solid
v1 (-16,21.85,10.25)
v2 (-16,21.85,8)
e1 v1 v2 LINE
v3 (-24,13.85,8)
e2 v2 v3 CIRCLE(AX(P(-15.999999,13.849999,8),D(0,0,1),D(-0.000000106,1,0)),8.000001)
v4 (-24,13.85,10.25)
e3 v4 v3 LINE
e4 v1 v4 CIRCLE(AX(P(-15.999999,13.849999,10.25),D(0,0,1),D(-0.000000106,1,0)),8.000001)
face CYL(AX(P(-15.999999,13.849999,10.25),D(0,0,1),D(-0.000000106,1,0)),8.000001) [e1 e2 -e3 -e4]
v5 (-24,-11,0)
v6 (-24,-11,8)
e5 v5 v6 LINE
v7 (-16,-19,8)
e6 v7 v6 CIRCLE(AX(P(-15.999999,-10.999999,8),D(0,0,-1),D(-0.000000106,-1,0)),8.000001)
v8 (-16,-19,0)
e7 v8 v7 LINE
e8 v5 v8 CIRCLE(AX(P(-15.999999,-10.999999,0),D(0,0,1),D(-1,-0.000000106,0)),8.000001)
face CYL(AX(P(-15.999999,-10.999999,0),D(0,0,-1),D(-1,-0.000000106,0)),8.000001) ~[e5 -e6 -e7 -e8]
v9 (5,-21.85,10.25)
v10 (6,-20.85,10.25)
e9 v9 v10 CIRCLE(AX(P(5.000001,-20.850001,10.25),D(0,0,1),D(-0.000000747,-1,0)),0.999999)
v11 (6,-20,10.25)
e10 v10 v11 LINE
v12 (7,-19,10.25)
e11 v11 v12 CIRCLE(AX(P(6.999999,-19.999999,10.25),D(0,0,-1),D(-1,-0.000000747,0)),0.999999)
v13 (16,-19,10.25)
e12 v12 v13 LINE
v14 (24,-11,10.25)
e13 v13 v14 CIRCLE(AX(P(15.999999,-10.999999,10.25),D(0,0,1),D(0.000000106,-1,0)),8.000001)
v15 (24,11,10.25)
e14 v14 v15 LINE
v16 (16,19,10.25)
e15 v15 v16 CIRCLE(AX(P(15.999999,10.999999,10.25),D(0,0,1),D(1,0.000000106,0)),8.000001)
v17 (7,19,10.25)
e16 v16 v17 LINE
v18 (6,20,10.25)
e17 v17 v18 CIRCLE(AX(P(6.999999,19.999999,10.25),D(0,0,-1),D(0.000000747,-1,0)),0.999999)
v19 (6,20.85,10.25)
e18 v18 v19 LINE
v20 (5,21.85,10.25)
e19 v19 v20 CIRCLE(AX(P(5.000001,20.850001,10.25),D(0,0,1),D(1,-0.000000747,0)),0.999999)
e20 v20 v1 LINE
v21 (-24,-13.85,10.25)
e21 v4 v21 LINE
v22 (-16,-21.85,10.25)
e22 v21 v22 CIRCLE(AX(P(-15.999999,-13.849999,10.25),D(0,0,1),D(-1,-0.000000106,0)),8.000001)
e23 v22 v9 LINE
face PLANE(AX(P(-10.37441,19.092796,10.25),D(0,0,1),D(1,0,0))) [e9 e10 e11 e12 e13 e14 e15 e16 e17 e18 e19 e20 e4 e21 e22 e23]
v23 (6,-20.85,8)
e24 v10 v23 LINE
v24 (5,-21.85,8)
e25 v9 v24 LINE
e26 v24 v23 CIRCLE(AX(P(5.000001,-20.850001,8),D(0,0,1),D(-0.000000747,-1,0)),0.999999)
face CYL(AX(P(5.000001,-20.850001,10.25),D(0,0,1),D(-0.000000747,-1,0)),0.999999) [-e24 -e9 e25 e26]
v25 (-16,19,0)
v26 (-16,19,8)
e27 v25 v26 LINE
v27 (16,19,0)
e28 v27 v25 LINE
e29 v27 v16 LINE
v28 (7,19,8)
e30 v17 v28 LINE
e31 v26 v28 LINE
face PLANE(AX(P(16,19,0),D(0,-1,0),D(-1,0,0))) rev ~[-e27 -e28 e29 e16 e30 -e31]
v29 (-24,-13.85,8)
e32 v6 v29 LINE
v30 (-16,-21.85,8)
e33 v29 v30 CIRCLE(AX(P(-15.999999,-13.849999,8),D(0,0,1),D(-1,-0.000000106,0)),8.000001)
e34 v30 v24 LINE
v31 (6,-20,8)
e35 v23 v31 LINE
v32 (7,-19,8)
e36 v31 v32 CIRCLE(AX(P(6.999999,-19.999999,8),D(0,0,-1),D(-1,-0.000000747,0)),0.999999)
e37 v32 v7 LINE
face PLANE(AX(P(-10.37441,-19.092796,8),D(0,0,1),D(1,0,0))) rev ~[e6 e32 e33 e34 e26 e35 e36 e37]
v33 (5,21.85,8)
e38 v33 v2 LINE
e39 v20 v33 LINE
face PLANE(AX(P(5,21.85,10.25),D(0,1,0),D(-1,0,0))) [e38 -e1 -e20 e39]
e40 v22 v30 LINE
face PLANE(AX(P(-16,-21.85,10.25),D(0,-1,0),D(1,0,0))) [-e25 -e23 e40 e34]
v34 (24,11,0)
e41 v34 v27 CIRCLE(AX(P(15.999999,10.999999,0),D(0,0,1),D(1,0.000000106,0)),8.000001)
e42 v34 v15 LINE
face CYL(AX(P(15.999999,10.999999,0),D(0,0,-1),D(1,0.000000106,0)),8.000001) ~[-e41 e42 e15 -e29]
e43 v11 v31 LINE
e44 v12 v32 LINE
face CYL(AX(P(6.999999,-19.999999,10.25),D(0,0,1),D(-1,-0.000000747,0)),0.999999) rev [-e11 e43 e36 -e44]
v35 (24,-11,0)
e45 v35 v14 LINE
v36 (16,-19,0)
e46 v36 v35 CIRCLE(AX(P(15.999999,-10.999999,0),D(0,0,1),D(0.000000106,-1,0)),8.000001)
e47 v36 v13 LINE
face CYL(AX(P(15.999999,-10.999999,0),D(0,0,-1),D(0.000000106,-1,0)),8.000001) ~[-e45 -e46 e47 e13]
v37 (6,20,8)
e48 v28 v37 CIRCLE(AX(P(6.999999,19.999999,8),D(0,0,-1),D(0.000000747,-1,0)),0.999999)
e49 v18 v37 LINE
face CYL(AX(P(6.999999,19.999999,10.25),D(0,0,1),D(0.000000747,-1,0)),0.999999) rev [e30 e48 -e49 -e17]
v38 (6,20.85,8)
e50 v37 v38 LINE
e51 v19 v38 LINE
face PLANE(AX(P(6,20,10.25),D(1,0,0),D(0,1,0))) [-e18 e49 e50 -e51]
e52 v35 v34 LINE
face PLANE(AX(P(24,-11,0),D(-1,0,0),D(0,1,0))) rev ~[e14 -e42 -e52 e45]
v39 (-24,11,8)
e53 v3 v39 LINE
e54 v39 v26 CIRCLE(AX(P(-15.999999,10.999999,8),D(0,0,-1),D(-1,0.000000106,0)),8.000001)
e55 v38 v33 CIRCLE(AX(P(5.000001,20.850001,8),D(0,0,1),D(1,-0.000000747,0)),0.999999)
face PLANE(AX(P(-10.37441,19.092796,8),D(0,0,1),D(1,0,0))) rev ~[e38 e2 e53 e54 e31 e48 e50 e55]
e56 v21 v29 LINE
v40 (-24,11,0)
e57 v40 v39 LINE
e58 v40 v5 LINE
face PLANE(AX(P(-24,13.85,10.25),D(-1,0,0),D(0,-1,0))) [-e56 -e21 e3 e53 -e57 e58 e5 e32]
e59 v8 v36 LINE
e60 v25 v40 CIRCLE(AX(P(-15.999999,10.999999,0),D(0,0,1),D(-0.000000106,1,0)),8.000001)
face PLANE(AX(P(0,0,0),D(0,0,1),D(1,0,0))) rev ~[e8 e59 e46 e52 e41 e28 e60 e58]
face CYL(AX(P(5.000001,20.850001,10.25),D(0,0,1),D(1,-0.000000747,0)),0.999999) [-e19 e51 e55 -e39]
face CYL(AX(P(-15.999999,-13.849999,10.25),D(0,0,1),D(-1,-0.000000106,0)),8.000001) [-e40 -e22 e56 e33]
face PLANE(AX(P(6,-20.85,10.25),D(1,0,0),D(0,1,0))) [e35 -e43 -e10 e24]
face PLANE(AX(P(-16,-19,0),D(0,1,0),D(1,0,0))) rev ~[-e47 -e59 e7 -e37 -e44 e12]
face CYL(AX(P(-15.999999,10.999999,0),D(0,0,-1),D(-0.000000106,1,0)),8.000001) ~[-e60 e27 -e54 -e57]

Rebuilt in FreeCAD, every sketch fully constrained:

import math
import FreeCAD as App
import Part
import Sketcher

doc = App.newDocument("Part")
body = doc.addObject("PartDesign::Body", "Body")

sketch1 = body.newObject("Sketcher::SketchObject", "Sketch")
sketch1.AttachmentSupport = (doc.getObject("XY_Plane"), [""])
sketch1.MapMode = "FlatFace"
sketch1.addGeometry([
    Part.LineSegment(App.Vector(16, 19, 0), App.Vector(-16, 19, 0)),
    Part.ArcOfCircle(Part.Circle(App.Vector(-16, 11, 0), App.Vector(0, 0, 1), 8), math.radians(90), math.radians(180)),
    Part.LineSegment(App.Vector(-24, 11, 0), App.Vector(-24, -11, 0)),
    Part.ArcOfCircle(Part.Circle(App.Vector(-16, -11, 0), App.Vector(0, 0, 1), 8), math.radians(-180), math.radians(-90)),
    Part.LineSegment(App.Vector(-16, -19, 0), App.Vector(16, -19, 0)),
    Part.ArcOfCircle(Part.Circle(App.Vector(16, -11, 0), App.Vector(0, 0, 1), 8), math.radians(-90), math.radians(0)),
    Part.LineSegment(App.Vector(24, -11, 0), App.Vector(24, 11, 0)),
    Part.ArcOfCircle(Part.Circle(App.Vector(16, 11, 0), App.Vector(0, 0, 1), 8), math.radians(0), math.radians(90)),
], False)
sketch1.addConstraint([
    Sketcher.Constraint("Tangent", 0, 2, 1, 1),
    Sketcher.Constraint("Tangent", 1, 2, 2, 1),
    Sketcher.Constraint("Tangent", 2, 2, 3, 1),
    Sketcher.Constraint("Tangent", 3, 2, 4, 1),
    Sketcher.Constraint("Tangent", 4, 2, 5, 1),
    Sketcher.Constraint("Tangent", 5, 2, 6, 1),
    Sketcher.Constraint("Tangent", 6, 2, 7, 1),
    Sketcher.Constraint("Tangent", 7, 2, 0, 1),
    Sketcher.Constraint("Horizontal", 0),
    Sketcher.Constraint("Vertical", 2),
    Sketcher.Constraint("Horizontal", 4),
    Sketcher.Constraint("Vertical", 6),
    Sketcher.Constraint("Equal", 1, 3),
    Sketcher.Constraint("Equal", 3, 5),
    Sketcher.Constraint("Equal", 5, 7),
    Sketcher.Constraint("Symmetric", 1, 3, 5, 3, -1, 1),
    Sketcher.Constraint("Radius", 1, 8.000001),
    Sketcher.Constraint("DistanceX", 0, 2, 0, 1, 32.0),
    Sketcher.Constraint("DistanceY", 2, 2, 2, 1, 22.0),
])
pad1 = body.newObject("PartDesign::Pad", "Pad")
pad1.Profile = sketch1
pad1.Length = 10.25

sketch2 = body.newObject("Sketcher::SketchObject", "Sketch001")
sketch2.AttachmentSupport = (doc.getObject("XY_Plane"), [""])
sketch2.MapMode = "FlatFace"
sketch2.AttachmentOffset = App.Placement(App.Vector(0, 0, 10.25), App.Rotation())
sketch2.addGeometry([
    Part.LineSegment(App.Vector(5, 21.9, 0), App.Vector(-16, 21.9, 0)),
    Part.ArcOfCircle(Part.Circle(App.Vector(-16, 13.8, 0), App.Vector(0, 0, 1), 8), math.radians(90), math.radians(180)),
    Part.LineSegment(App.Vector(-24, 13.8, 0), App.Vector(-24, 11, 0)),
    Part.ArcOfCircle(Part.Circle(App.Vector(-16, 11, 0), App.Vector(0, 0, 1), 8), math.radians(90), math.radians(180)),
    Part.LineSegment(App.Vector(-16, 19, 0), App.Vector(7, 19, 0)),
    Part.ArcOfCircle(Part.Circle(App.Vector(7, 20, 0), App.Vector(0, 0, 1), 1), math.radians(180), math.radians(270)),
    Part.LineSegment(App.Vector(6, 20, 0), App.Vector(6, 20.9, 0)),
    Part.ArcOfCircle(Part.Circle(App.Vector(5, 20.9, 0), App.Vector(0, 0, 1), 1), math.radians(0), math.radians(90)),
    Part.ArcOfCircle(Part.Circle(App.Vector(-16, -11, 0), App.Vector(0, 0, 1), 8), math.radians(-180), math.radians(-90)),
    Part.LineSegment(App.Vector(-24, -11, 0), App.Vector(-24, -13.8, 0)),
    Part.ArcOfCircle(Part.Circle(App.Vector(-16, -13.8, 0), App.Vector(0, 0, 1), 8), math.radians(-180), math.radians(-90)),
    Part.LineSegment(App.Vector(-16, -21.9, 0), App.Vector(5, -21.9, 0)),
    Part.ArcOfCircle(Part.Circle(App.Vector(5, -20.9, 0), App.Vector(0, 0, 1), 1), math.radians(-90), math.radians(0)),
    Part.LineSegment(App.Vector(6, -20.9, 0), App.Vector(6, -20, 0)),
    Part.ArcOfCircle(Part.Circle(App.Vector(7, -20, 0), App.Vector(0, 0, 1), 1), math.radians(90), math.radians(180)),
    Part.LineSegment(App.Vector(7, -19, 0), App.Vector(-16, -19, 0)),
], False)
sketch2.addConstraint([
    Sketcher.Constraint("Tangent", 0, 2, 1, 1),
    Sketcher.Constraint("Tangent", 1, 2, 2, 1),
    Sketcher.Constraint("Tangent", 2, 2, 3, 2),
    Sketcher.Constraint("Tangent", 3, 1, 4, 1),
    Sketcher.Constraint("Tangent", 4, 2, 5, 2),
    Sketcher.Constraint("Tangent", 5, 1, 6, 1),
    Sketcher.Constraint("Tangent", 6, 2, 7, 1),
    Sketcher.Constraint("Tangent", 7, 2, 0, 1),
    Sketcher.Constraint("Tangent", 8, 1, 9, 1),
    Sketcher.Constraint("Tangent", 9, 2, 10, 1),
    Sketcher.Constraint("Tangent", 10, 2, 11, 1),
    Sketcher.Constraint("Tangent", 11, 2, 12, 1),
    Sketcher.Constraint("Tangent", 12, 2, 13, 1),
    Sketcher.Constraint("Tangent", 13, 2, 14, 2),
    Sketcher.Constraint("Tangent", 14, 1, 15, 1),
    Sketcher.Constraint("Tangent", 15, 2, 8, 2),
    Sketcher.Constraint("Horizontal", 0),
    Sketcher.Constraint("Vertical", 2),
    Sketcher.Constraint("Horizontal", 4),
    Sketcher.Constraint("Vertical", 6),
    Sketcher.Constraint("Vertical", 9),
    Sketcher.Constraint("Horizontal", 11),
    Sketcher.Constraint("Vertical", 13),
    Sketcher.Constraint("Horizontal", 15),
    Sketcher.Constraint("Equal", 1, 3),
    Sketcher.Constraint("Equal", 5, 7),
    Sketcher.Constraint("Equal", 3, 8),
    Sketcher.Constraint("Equal", 8, 10),
    Sketcher.Constraint("Equal", 7, 12),
    Sketcher.Constraint("Equal", 12, 14),
    Sketcher.Constraint("Symmetric", 3, 3, 8, 3, -1),
    Sketcher.Constraint("Symmetric", 7, 3, 12, 3, -1),
    Sketcher.Constraint("Radius", 1, 8.000001),
    Sketcher.Constraint("Radius", 5, 0.999999),
    Sketcher.Constraint("DistanceX", 0, 2, 0, 1, 21.0),
    Sketcher.Constraint("DistanceX", 1, 3, -1, 1, 15.999999),
    Sketcher.Constraint("DistanceY", -1, 1, 3, 3, 10.999999),
    Sketcher.Constraint("DistanceY", 2, 2, 2, 1, 2.85),
])
pad2 = body.newObject("PartDesign::Pad", "Pad001")
pad2.Profile = sketch2
pad2.Length = 2.25
pad2.Reversed = True

doc.recompute()
